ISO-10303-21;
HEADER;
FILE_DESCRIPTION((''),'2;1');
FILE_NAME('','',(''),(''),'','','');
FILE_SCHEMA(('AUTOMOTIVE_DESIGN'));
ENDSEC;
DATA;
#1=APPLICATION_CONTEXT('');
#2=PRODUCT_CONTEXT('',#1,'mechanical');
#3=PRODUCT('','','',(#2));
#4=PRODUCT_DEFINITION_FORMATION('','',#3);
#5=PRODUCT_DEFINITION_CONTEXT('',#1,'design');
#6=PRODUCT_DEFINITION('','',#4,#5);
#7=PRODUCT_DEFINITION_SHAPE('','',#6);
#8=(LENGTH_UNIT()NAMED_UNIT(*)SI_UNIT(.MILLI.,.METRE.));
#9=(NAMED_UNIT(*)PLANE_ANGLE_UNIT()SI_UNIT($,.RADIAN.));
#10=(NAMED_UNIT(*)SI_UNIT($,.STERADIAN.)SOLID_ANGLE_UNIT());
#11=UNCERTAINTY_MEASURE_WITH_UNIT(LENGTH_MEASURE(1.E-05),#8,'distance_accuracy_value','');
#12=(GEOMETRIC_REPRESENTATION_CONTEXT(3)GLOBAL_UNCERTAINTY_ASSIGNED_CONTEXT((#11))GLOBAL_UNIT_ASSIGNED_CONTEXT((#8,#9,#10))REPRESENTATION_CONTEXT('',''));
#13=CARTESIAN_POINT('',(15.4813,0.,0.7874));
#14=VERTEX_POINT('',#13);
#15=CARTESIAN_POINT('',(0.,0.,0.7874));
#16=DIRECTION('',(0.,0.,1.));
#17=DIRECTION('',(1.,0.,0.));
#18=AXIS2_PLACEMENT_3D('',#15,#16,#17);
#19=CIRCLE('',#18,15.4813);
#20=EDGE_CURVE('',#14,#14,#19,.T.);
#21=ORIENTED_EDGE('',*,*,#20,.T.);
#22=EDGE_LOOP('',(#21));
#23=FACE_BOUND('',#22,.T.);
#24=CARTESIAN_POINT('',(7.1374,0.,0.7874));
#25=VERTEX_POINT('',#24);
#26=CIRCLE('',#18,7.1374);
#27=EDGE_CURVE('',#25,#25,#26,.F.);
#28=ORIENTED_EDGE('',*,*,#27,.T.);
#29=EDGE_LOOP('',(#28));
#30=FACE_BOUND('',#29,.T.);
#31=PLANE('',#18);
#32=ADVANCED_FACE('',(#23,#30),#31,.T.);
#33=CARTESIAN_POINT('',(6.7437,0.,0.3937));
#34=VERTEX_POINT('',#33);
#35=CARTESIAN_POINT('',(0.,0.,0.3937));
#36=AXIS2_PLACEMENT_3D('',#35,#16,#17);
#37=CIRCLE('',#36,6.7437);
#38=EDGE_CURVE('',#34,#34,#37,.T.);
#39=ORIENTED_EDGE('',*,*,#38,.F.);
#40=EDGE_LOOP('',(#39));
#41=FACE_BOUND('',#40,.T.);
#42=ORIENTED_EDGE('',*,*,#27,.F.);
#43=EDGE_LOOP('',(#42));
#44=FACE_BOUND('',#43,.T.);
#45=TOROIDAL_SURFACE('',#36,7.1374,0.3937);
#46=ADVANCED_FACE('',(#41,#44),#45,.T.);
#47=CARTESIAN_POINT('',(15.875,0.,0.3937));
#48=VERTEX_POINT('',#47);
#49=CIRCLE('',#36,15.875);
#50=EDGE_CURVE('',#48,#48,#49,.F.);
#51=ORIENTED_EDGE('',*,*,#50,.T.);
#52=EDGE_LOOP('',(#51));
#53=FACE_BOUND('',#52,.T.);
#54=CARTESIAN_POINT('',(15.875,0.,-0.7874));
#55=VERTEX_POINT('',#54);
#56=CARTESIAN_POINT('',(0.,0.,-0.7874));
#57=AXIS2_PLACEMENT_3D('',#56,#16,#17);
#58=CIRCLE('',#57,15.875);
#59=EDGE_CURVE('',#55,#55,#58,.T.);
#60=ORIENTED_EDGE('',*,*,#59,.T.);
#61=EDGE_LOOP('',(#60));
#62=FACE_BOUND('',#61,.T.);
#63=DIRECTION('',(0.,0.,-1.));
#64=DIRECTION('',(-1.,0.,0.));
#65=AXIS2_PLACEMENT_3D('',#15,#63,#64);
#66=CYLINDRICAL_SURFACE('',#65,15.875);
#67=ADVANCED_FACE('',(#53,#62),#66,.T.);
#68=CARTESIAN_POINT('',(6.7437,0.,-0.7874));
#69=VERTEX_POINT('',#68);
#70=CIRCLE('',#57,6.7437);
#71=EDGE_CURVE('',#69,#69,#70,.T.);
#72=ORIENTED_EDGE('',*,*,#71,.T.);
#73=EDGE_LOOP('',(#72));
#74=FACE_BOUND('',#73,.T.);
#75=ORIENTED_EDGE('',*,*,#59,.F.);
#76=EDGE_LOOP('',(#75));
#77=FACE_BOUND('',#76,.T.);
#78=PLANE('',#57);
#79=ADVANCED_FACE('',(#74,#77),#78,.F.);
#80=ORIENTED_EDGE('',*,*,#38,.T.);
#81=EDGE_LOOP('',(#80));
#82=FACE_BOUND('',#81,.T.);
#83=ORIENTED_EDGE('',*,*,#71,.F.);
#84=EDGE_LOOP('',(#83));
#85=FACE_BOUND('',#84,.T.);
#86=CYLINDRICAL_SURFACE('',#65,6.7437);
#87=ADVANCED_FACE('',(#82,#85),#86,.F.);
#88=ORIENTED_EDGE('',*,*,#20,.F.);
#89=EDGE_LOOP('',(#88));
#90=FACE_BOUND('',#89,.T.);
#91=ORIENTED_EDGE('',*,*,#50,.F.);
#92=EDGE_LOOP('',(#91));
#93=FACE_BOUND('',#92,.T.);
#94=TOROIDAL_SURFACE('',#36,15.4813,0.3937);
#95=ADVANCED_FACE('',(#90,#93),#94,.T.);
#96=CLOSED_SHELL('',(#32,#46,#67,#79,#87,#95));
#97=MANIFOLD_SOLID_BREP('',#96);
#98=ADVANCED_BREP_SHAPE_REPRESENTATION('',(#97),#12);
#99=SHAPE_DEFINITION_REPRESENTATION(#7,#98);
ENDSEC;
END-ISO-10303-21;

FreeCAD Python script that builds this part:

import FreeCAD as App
import Part
import Sketcher
from FreeCAD import Vector
Q = App.Units.Quantity


def edges_at(feature, points):
    """Names of the edges that pass closest to the given points."""
    edges = feature.Shape.Edges
    near = lambda p: min(range(len(edges)), key=lambda i: edges[i].distToShape(Part.Vertex(*p))[0])
    return sorted({f"Edge{near(p) + 1}" for p in points})

doc = App.newDocument("Part")
body = doc.addObject("PartDesign::Body", "Body")

sketch1 = body.newObject("Sketcher::SketchObject", "Sketch")
sketch1.AttachmentSupport = (doc.getObject("XY_Plane"), [""])
sketch1.MapMode = "FlatFace"
sketch1.addGeometry(Part.Circle(Vector(0, 0, 0), Vector(0, 0, 1), 16), False)
sketch1.addGeometry(Part.Circle(Vector(0, 0, 0), Vector(0, 0, 1), 7), False)
sketch1.addConstraint(Sketcher.Constraint("Coincident", 0, 3, -1, 1))
sketch1.addConstraint(Sketcher.Constraint("Coincident", 1, 3, -1, 1))
sketch1.addConstraint(Sketcher.Constraint("Diameter", 0, Q("1.25 in")))
sketch1.addConstraint(Sketcher.Constraint("Diameter", 1, Q("0.531 in")))
pad1 = body.newObject("PartDesign::Pad", "Pad")
pad1.Profile = sketch1
pad1.Type = "TwoLengths"
pad1.Length = Q("0.031 in")
pad1.Length2 = Q("0.031 in")
doc.recompute()

fillet = body.newObject("PartDesign::Fillet", "Fillet")
fillet.Base = (pad1, edges_at(pad1, [(-15.875, 0, 0.787), (-6.744, 0, 0.787)]))
fillet.Radius = Q("0.0155 in")

doc.recompute()
